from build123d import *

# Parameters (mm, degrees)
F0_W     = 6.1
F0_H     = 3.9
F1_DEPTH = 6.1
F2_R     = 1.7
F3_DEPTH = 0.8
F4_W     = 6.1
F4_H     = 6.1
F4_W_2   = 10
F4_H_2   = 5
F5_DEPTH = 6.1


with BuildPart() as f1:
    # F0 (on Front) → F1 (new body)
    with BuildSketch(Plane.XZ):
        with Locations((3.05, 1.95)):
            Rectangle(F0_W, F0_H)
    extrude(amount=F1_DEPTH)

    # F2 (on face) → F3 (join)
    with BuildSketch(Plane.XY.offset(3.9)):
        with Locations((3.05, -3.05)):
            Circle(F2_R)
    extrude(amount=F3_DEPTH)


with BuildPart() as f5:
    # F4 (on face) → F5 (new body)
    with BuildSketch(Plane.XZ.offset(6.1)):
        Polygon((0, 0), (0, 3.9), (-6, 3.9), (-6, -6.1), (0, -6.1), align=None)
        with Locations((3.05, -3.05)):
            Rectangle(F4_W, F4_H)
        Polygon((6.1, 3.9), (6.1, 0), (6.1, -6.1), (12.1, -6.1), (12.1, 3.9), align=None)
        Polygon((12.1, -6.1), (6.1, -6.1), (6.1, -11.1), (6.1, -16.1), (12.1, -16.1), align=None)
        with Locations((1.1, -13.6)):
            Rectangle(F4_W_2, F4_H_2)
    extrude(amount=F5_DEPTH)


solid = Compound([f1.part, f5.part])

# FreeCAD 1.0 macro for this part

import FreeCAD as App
import Part
import Sketcher

V = App.Vector
Q = App.Units.Quantity

doc = App.newDocument("Part")
params = doc.addObject("Spreadsheet::Sheet", "Params")
for row, (alias, value) in enumerate([
    ("sketch1_width", "6.1 mm"),
    ("sketch1_height", "3.9 mm"),
    ("pad1_length", "6.1 mm"),
    ("sketch2_diameter", "3.4 mm"),
    ("pad2_length", "0.8 mm"),
    ("sketch3_width", "6 mm"),
    ("sketch3_width2", "10 mm"),
    ("sketch3_height", "5 mm"),
    ("sketch3_width3", "12.1 mm"),
    ("sketch3_height2", "3.9 mm"),
    ("pad3_length", "6.1 mm"),
], start=1):
    params.set(f"A{row}", alias)
    params.set(f"B{row}", "=" + value)
    params.setAlias(f"B{row}", alias)

body = doc.addObject("PartDesign::Body", "Body")

# Sketch on XZ plane
sketch1 = doc.addObject("Sketcher::SketchObject", "Sketch")
body.addObject(sketch1)
sketch1.AttachmentSupport = (doc.XZ_Plane, [""])
sketch1.MapMode = "FlatFace"
sketch1.addGeometry([
    Part.LineSegment(V(0, 3.9, 0), V(0, 0, 0)),
    Part.LineSegment(V(0, 0, 0), V(6.1, 0, 0)),
    Part.LineSegment(V(6.1, 0, 0), V(6.1, 3.9, 0)),
    Part.LineSegment(V(6.1, 3.9, 0), V(0, 3.9, 0)),
], False)
sketch1.addConstraint([
    Sketcher.Constraint("Coincident", 0, 2, 1, 1),
    Sketcher.Constraint("Coincident", 1, 2, 2, 1),
    Sketcher.Constraint("Coincident", 2, 2, 3, 1),
    Sketcher.Constraint("Coincident", 3, 2, 0, 1),
    Sketcher.Constraint("Vertical", 0),
    Sketcher.Constraint("Horizontal", 1),
    Sketcher.Constraint("Vertical", 2),
    Sketcher.Constraint("Horizontal", 3),
    Sketcher.Constraint("Coincident", 0, 2, -1, 1),
    Sketcher.Constraint("DistanceX", 1, 1, 1, 2, Q("6.1 mm")),
    Sketcher.Constraint("DistanceY", 0, 2, 0, 1, Q("3.9 mm")),
])
sketch1.setExpression("Constraints[9]", "Params.sketch1_width")
sketch1.setExpression("Constraints[10]", "Params.sketch1_height")
pad1 = doc.addObject("PartDesign::Pad", "Pad")
body.addObject(pad1)
pad1.Profile = sketch1
pad1.setExpression("Length", "Params.pad1_length")

# Sketch on XY plane
sketch2 = doc.addObject("Sketcher::SketchObject", "Sketch001")
body.addObject(sketch2)
sketch2.AttachmentSupport = (doc.XY_Plane, [""])
sketch2.MapMode = "FlatFace"
sketch2.AttachmentOffset = App.Placement(V(0, 0, 3.9), App.Rotation())
sketch2.addGeometry(Part.Circle(V(3.05, -3.05, 0), V(0, 0, 1), 1.7), False)
sketch2.addConstraint([
    Sketcher.Constraint("Diameter", 0, Q("3.4 mm")),
    Sketcher.Constraint("DistanceX", -1, 1, 0, 3, Q("3.05 mm")),
    Sketcher.Constraint("DistanceY", 0, 3, -1, 1, Q("3.05 mm")),
])
sketch2.setExpression("Constraints[0]", "Params.sketch2_diameter")
pad2 = doc.addObject("PartDesign::Pad", "Pad001")
body.addObject(pad2)
pad2.Profile = sketch2
pad2.setExpression("Length", "Params.pad2_length")
body2 = doc.addObject("PartDesign::Body", "Body001")

# Sketch on XZ plane
sketch3 = doc.addObject("Sketcher::SketchObject", "Sketch002")
body2.addObject(sketch3)
sketch3.AttachmentSupport = (doc.getObject("XZ_Plane001"), [""])
sketch3.MapMode = "FlatFace"
sketch3.AttachmentOffset = App.Placement(V(0, 0, 6.1), App.Rotation())
sketch3.addGeometry([
    Part.LineSegment(V(0, 3.9, 0), V(-6, 3.9, 0)),  # 0
    Part.LineSegment(V(-6, 3.9, 0), V(-6, -6.1, 0)),  # 1
    Part.LineSegment(V(-6, -6.1, 0), V(6.1, -6.1, 0)),  # 2
    Part.LineSegment(V(6.1, -6.1, 0), V(6.1, -11.1, 0)),  # 3
    Part.LineSegment(V(6.1, -11.1, 0), V(-3.9, -11.1, 0)),  # 4
    Part.LineSegment(V(-3.9, -11.1, 0), V(-3.9, -16.1, 0)),  # 5
    Part.LineSegment(V(-3.9, -16.1, 0), V(12.1, -16.1, 0)),  # 6
    Part.LineSegment(V(12.1, -16.1, 0), V(12.1, 3.9, 0)),  # 7
    Part.LineSegment(V(12.1, 3.9, 0), V(6.1, 3.9, 0)),  # 8
    Part.LineSegment(V(6.1, 3.9, 0), V(6.1, 0, 0)),  # 9
    Part.LineSegment(V(6.1, 0, 0), V(0, 0, 0)),  # 10
    Part.LineSegment(V(0, 0, 0), V(0, 3.9, 0)),  # 11
], False)
sketch3.addConstraint([
    Sketcher.Constraint("Coincident", 0, 2, 1, 1),
    Sketcher.Constraint("Coincident", 1, 2, 2, 1),
    Sketcher.Constraint("Coincident", 2, 2, 3, 1),
    Sketcher.Constraint("Coincident", 3, 2, 4, 1),
    Sketcher.Constraint("Coincident", 4, 2, 5, 1),
    Sketcher.Constraint("Coincident", 5, 2, 6, 1),
    Sketcher.Constraint("Coincident", 6, 2, 7, 1),
    Sketcher.Constraint("Coincident", 7, 2, 8, 1),
    Sketcher.Constraint("Coincident", 8, 2, 9, 1),
    Sketcher.Constraint("Coincident", 9, 2, 10, 1),
    Sketcher.Constraint("Coincident", 10, 2, 11, 1),
    Sketcher.Constraint("Coincident", 11, 2, 0, 1),
    Sketcher.Constraint("Horizontal", 0),
    Sketcher.Constraint("Vertical", 1),
    Sketcher.Constraint("Horizontal", 2),
    Sketcher.Constraint("Vertical", 3),
    Sketcher.Constraint("Horizontal", 4),
    Sketcher.Constraint("Vertical", 5),
    Sketcher.Constraint("Horizontal", 6),
    Sketcher.Constraint("Vertical", 7),
    Sketcher.Constraint("Horizontal", 8),
    Sketcher.Constraint("Vertical", 9),
    Sketcher.Constraint("Horizontal", 10),
    Sketcher.Constraint("Vertical", 11),
    Sketcher.Constraint("Coincident", 10, 2, -1, 1),
    Sketcher.Constraint("Horizontal", 0, 2, 7, 2),
    Sketcher.Constraint("Vertical", 3, 2, 8, 2),
    Sketcher.Constraint("Equal", 0, 8),
    Sketcher.Constraint("Equal", 4, 1),
    Sketcher.Constraint("Equal", 3, 5),
    Sketcher.Constraint("DistanceX", 0, 2, 0, 1, Q("6 mm")),
    Sketcher.Constraint("DistanceX", 4, 2, 4, 1, Q("10 mm")),
    Sketcher.Constraint("DistanceY", 3, 2, 3, 1, Q("5 mm")),
    Sketcher.Constraint("DistanceX", 2, 1, 2, 2, Q("12.1 mm")),
    Sketcher.Constraint("DistanceY", 9, 2, 9, 1, Q("3.9 mm")),
])
sketch3.setExpression("Constraints[30]", "Params.sketch3_width")
sketch3.setExpression("Constraints[31]", "Params.sketch3_width2")
sketch3.setExpression("Constraints[32]", "Params.sketch3_height")
sketch3.setExpression("Constraints[33]", "Params.sketch3_width3")
sketch3.setExpression("Constraints[34]", "Params.sketch3_height2")
pad3 = doc.addObject("PartDesign::Pad", "Pad002")
body2.addObject(pad3)
pad3.Profile = sketch3
pad3.setExpression("Length", "Params.pad3_length")

doc.recompute()
